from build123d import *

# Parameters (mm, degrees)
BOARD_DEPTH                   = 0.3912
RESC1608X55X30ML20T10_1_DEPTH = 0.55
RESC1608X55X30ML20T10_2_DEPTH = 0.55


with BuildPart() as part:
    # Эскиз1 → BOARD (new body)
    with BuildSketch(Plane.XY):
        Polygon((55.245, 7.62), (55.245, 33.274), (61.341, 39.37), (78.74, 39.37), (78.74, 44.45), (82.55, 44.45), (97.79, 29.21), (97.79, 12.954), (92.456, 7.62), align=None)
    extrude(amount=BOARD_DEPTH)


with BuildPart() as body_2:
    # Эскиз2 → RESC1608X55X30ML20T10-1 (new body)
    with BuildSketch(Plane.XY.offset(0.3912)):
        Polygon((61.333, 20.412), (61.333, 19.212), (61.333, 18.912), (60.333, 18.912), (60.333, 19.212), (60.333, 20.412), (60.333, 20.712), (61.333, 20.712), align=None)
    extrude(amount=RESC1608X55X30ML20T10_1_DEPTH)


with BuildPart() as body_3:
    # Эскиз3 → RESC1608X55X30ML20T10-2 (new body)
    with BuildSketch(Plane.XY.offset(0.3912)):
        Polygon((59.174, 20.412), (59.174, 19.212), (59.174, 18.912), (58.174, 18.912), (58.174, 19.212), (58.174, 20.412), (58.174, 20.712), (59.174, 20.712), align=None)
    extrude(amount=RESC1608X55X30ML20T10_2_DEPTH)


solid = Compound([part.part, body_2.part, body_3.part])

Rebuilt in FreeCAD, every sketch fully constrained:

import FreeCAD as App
import Part
import Sketcher

V = App.Vector
Q = App.Units.Quantity

doc = App.newDocument("Part")
body = doc.addObject("PartDesign::Body", "Body")

# Sketch on XY plane
sketch1 = body.newObject("Sketcher::SketchObject", "Sketch")
sketch1.AttachmentSupport = (doc.getObject("XY_Plane"), [""])
sketch1.MapMode = "FlatFace"
sketch1.addGeometry(Part.LineSegment(V(55.245, 33.274, 0), V(55.245, 7.62, 0)), False)
sketch1.addGeometry(Part.LineSegment(V(55.245, 7.62, 0), V(92.456, 7.62, 0)), False)
sketch1.addGeometry(Part.LineSegment(V(92.456, 7.62, 0), V(97.79, 12.954, 0)), False)
sketch1.addGeometry(Part.LineSegment(V(97.79, 12.954, 0), V(97.79, 29.21, 0)), False)
sketch1.addGeometry(Part.LineSegment(V(97.79, 29.21, 0), V(82.55, 44.45, 0)), False)
sketch1.addGeometry(Part.LineSegment(V(82.55, 44.45, 0), V(78.74, 44.45, 0)), False)
sketch1.addGeometry(Part.LineSegment(V(78.74, 44.45, 0), V(78.74, 39.37, 0)), False)
sketch1.addGeometry(Part.LineSegment(V(78.74, 39.37, 0), V(61.341, 39.37, 0)), False)
sketch1.addGeometry(Part.LineSegment(V(61.341, 39.37, 0), V(55.245, 33.274, 0)), False)
sketch1.addConstraint(Sketcher.Constraint("Coincident", 0, 2, 1, 1))
sketch1.addConstraint(Sketcher.Constraint("Coincident", 1, 2, 2, 1))
sketch1.addConstraint(Sketcher.Constraint("Coincident", 2, 2, 3, 1))
sketch1.addConstraint(Sketcher.Constraint("Coincident", 3, 2, 4, 1))
sketch1.addConstraint(Sketcher.Constraint("Coincident", 4, 2, 5, 1))
sketch1.addConstraint(Sketcher.Constraint("Coincident", 5, 2, 6, 1))
sketch1.addConstraint(Sketcher.Constraint("Coincident", 6, 2, 7, 1))
sketch1.addConstraint(Sketcher.Constraint("Coincident", 7, 2, 8, 1))
sketch1.addConstraint(Sketcher.Constraint("Coincident", 8, 2, 0, 1))
sketch1.addConstraint(Sketcher.Constraint("Vertical", 0))
sketch1.addConstraint(Sketcher.Constraint("Horizontal", 1))
sketch1.addConstraint(Sketcher.Constraint("Vertical", 3))
sketch1.addConstraint(Sketcher.Constraint("Horizontal", 5))
sketch1.addConstraint(Sketcher.Constraint("Vertical", 6))
sketch1.addConstraint(Sketcher.Constraint("Horizontal", 7))
sketch1.addConstraint(Sketcher.Constraint("Perpendicular", 2, 4))
sketch1.addConstraint(Sketcher.Constraint("Perpendicular", 4, 8))
sketch1.addConstraint(Sketcher.Constraint("DistanceY", 6, 2, 6, 1, Q("0.2 in")))
sketch1.addConstraint(Sketcher.Constraint("Angle", 2, Q("45 deg")))
sketch1.addConstraint(Sketcher.Constraint("DistanceX", 5, 2, 5, 1, Q("0.15 in")))
sketch1.addConstraint(Sketcher.Constraint("DistanceY", 0, 2, 0, 1, Q("1.01 in")))
sketch1.addConstraint(Sketcher.Constraint("DistanceY", 3, 1, 3, 2, Q("0.64 in")))
sketch1.addConstraint(Sketcher.Constraint("DistanceY", -1, 1, 0, 2, Q("0.3 in")))
sketch1.addConstraint(Sketcher.Constraint("DistanceX", -1, 1, 5, 2, Q("3.1 in")))
sketch1.addConstraint(Sketcher.Constraint("DistanceX", 4, 2, 3, 2, Q("0.6 in")))
sketch1.addConstraint(Sketcher.Constraint("DistanceX", 1, 1, 1, 2, Q("1.465 in")))
sketch1.addConstraint(Sketcher.Constraint("DistanceX", -1, 1, 1, 2, Q("3.64 in")))
pad1 = body.newObject("PartDesign::Pad", "Pad")
pad1.Profile = sketch1
pad1.Length = 0.3912
body2 = doc.addObject("PartDesign::Body", "Body001")

# Sketch on XY plane
sketch2 = body2.newObject("Sketcher::SketchObject", "Sketch001")
sketch2.AttachmentSupport = (doc.getObject("XY_Plane001"), [""])
sketch2.MapMode = "FlatFace"
sketch2.AttachmentOffset = App.Placement(V(0, 0, 0.3912), App.Rotation())
sketch2.addGeometry(Part.LineSegment(V(61.333, 18.912, 0), V(61.333, 20.712, 0)), False)
sketch2.addGeometry(Part.LineSegment(V(61.333, 20.712, 0), V(60.333, 20.712, 0)), False)
sketch2.addGeometry(Part.LineSegment(V(60.333, 20.712, 0), V(60.333, 18.912, 0)), False)
sketch2.addGeometry(Part.LineSegment(V(60.333, 18.912, 0), V(61.333, 18.912, 0)), False)
sketch2.addConstraint(Sketcher.Constraint("Coincident", 0, 2, 1, 1))
sketch2.addConstraint(Sketcher.Constraint("Coincident", 1, 2, 2, 1))
sketch2.addConstraint(Sketcher.Constraint("Coincident", 2, 2, 3, 1))
sketch2.addConstraint(Sketcher.Constraint("Coincident", 3, 2, 0, 1))
sketch2.addConstraint(Sketcher.Constraint("Vertical", 0))
sketch2.addConstraint(Sketcher.Constraint("Horizontal", 1))
sketch2.addConstraint(Sketcher.Constraint("Vertical", 2))
sketch2.addConstraint(Sketcher.Constraint("Horizontal", 3))
sketch2.addConstraint(Sketcher.Constraint("DistanceX", 1, 2, 1, 1, 1.0))
sketch2.addConstraint(Sketcher.Constraint("DistanceY", 0, 1, 0, 2, 1.8))
sketch2.addConstraint(Sketcher.Constraint("DistanceX", -1, 1, 0, 2, 61.333))
sketch2.addConstraint(Sketcher.Constraint("DistanceY", -1, 1, 0, 2, 20.712))
pad2 = body2.newObject("PartDesign::Pad", "Pad001")
pad2.Profile = sketch2
pad2.Length = 0.55
body3 = doc.addObject("PartDesign::Body", "Body002")

# Sketch on XY plane
sketch3 = body3.newObject("Sketcher::SketchObject", "Sketch002")
sketch3.AttachmentSupport = (doc.getObject("XY_Plane002"), [""])
sketch3.MapMode = "FlatFace"
sketch3.AttachmentOffset = App.Placement(V(0, 0, 0.3912), App.Rotation())
sketch3.addGeometry(Part.LineSegment(V(59.174, 18.912, 0), V(59.174, 20.712, 0)), False)
sketch3.addGeometry(Part.LineSegment(V(59.174, 20.712, 0), V(58.174, 20.712, 0)), False)
sketch3.addGeometry(Part.LineSegment(V(58.174, 20.712, 0), V(58.174, 18.912, 0)), False)
sketch3.addGeometry(Part.LineSegment(V(58.174, 18.912, 0), V(59.174, 18.912, 0)), False)
sketch3.addConstraint(Sketcher.Constraint("Coincident", 0, 2, 1, 1))
sketch3.addConstraint(Sketcher.Constraint("Coincident", 1, 2, 2, 1))
sketch3.addConstraint(Sketcher.Constraint("Coincident", 2, 2, 3, 1))
sketch3.addConstraint(Sketcher.Constraint("Coincident", 3, 2, 0, 1))
sketch3.addConstraint(Sketcher.Constraint("Vertical", 0))
sketch3.addConstraint(Sketcher.Constraint("Horizontal", 1))
sketch3.addConstraint(Sketcher.Constraint("Vertical", 2))
sketch3.addConstraint(Sketcher.Constraint("Horizontal", 3))
sketch3.addConstraint(Sketcher.Constraint("DistanceX", 1, 2, 1, 1, 1.0))
sketch3.addConstraint(Sketcher.Constraint("DistanceY", 0, 1, 0, 2, 1.8))
sketch3.addConstraint(Sketcher.Constraint("DistanceX", -1, 1, 0, 2, 59.174))
sketch3.addConstraint(Sketcher.Constraint("DistanceY", -1, 1, 0, 2, 20.712))
pad3 = body3.newObject("PartDesign::Pad", "Pad002")
pad3.Profile = sketch3
pad3.Length = 0.55

doc.recompute()
